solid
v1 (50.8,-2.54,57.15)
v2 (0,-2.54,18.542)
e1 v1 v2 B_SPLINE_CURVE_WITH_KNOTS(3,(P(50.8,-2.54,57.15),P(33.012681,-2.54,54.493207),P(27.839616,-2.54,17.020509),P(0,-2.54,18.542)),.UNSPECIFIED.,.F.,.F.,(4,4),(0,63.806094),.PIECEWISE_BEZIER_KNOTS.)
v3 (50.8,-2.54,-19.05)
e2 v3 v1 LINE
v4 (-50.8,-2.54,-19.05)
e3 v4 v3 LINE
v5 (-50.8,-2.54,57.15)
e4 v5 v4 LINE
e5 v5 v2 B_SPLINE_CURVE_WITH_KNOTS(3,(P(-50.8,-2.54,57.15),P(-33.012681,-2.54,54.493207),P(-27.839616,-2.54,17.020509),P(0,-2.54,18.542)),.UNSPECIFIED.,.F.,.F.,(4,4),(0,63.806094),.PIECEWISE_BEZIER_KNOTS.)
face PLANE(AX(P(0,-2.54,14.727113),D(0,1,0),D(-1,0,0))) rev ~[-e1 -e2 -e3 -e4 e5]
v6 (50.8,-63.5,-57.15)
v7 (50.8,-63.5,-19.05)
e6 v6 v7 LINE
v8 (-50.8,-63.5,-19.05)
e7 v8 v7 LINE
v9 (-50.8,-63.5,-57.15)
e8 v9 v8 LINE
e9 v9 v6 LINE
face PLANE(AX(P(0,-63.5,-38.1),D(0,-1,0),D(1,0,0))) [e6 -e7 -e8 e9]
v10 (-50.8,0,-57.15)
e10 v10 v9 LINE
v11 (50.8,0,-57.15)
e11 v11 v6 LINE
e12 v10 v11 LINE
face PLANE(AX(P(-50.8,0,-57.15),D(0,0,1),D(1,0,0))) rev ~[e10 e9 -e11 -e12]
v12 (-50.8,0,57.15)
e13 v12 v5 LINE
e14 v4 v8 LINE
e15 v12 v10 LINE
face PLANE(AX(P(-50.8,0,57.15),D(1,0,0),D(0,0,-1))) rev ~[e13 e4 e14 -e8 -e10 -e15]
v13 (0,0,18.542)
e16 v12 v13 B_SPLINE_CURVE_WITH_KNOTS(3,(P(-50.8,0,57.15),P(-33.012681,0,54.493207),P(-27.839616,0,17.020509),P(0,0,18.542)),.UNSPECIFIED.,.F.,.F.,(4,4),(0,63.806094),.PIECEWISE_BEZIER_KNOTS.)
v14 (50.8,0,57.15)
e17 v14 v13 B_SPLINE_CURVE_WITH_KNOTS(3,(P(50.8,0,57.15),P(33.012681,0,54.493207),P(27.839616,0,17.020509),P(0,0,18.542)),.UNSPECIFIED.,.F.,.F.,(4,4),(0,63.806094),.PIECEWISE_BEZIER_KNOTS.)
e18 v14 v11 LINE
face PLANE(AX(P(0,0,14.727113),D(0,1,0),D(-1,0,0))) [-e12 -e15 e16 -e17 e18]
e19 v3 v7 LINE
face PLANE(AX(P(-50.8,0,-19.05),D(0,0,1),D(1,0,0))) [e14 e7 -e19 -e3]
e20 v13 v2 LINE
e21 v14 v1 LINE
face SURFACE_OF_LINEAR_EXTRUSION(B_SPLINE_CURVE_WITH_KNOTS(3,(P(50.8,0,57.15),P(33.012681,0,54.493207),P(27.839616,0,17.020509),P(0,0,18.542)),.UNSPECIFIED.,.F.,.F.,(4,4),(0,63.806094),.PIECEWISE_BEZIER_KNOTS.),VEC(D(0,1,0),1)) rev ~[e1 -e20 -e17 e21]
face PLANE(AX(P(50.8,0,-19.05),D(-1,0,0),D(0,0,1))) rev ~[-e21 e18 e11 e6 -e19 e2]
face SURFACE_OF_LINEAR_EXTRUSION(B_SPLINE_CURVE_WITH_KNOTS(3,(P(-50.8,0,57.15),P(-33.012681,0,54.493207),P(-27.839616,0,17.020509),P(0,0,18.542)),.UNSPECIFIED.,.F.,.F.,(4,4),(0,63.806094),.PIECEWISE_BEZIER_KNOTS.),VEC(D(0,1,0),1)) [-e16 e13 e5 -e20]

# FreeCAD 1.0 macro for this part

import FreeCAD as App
import Part
import Sketcher
Q = App.Units.Quantity


def add_polygon(sketch, points):
    """Adds a closed chain of lines whose ends are joined by coincident constraints."""
    first, n = sketch.GeometryCount, len(points)
    for a, b in zip(points, points[1:] + points[:1]):
        sketch.addGeometry(Part.LineSegment(App.Vector(*a, 0), App.Vector(*b, 0)), False)
    for i in range(n):
        sketch.addConstraint(Sketcher.Constraint("Coincident", first + i, 2, first + (i + 1) % n, 1))

doc = App.newDocument("Part")
body = doc.addObject("PartDesign::Body", "Body")

sketch1 = body.newObject("Sketcher::SketchObject", "Sketch")
sketch1.AttachmentSupport = (doc.getObject("XZ_Plane"), [""])
sketch1.MapMode = "FlatFace"
add_polygon(sketch1, [(-51, -19), (-51, -57), (51, -57), (51, -19)])
sketch1.addConstraint([
    Sketcher.Constraint("Vertical", 0),
    Sketcher.Constraint("Horizontal", 1),
    Sketcher.Constraint("Vertical", 2),
    Sketcher.Constraint("Horizontal", 3),
    Sketcher.Constraint("DistanceX", 1, 1, 1, 2, Q("4 in")),
    Sketcher.Constraint("DistanceY", 0, 2, 0, 1, Q("1.5 in")),
    Sketcher.Constraint("DistanceX", 0, 2, -1, 1, Q("2 in")),
    Sketcher.Constraint("DistanceY", 0, 2, -1, 1, Q("2.25 in")),
])
pad1 = body.newObject("PartDesign::Pad", "Pad")
pad1.Profile = sketch1
pad1.Length = Q("2.5 in")

sketch2 = body.newObject("Sketcher::SketchObject", "Sketch001")
sketch2.AttachmentSupport = (doc.getObject("XZ_Plane"), [""])
sketch2.MapMode = "FlatFace"
sketch2.addGeometry([
    Part.BSplineCurve([App.Vector(-50.8, 57.15, 0), App.Vector(-33.012681, 54.493207, 0), App.Vector(-27.839616, 17.020509, 0), App.Vector(0, 18.542, 0)], [4, 4], [0, 63.806094], False, 3, [1, 1, 1, 1], False),
    Part.LineSegment(App.Vector(-50.8, 57.15, 0), App.Vector(-50.8, -19.05, 0)),
    Part.LineSegment(App.Vector(-50.8, -19.05, 0), App.Vector(50.8, -19.05, 0)),
    Part.LineSegment(App.Vector(50.8, -19.05, 0), App.Vector(50.8, 57.15, 0)),
    Part.BSplineCurve([App.Vector(50.8, 57.15, 0), App.Vector(33.012681, 54.493207, 0), App.Vector(27.839616, 17.020509, 0), App.Vector(0, 18.542, 0)], [4, 4], [0, 63.806094], False, 3, [1, 1, 1, 1], False),
], False)
sketch2.addConstraint([
    Sketcher.Constraint("Block", 0),
    Sketcher.Constraint("Block", 4),
    Sketcher.Constraint("Coincident", 0, 1, 1, 1),
    Sketcher.Constraint("Coincident", 1, 2, 2, 1),
    Sketcher.Constraint("Coincident", 2, 2, 3, 1),
    Sketcher.Constraint("Coincident", 3, 2, 4, 1),
    Sketcher.Constraint("Vertical", 1),
    Sketcher.Constraint("Horizontal", 2),
    Sketcher.Constraint("Vertical", 3),
    Sketcher.Constraint("DistanceY", 1, 2, 1, 1, Q("3 in")),
])
pad2 = body.newObject("PartDesign::Pad", "Pad001")
pad2.Profile = sketch2
pad2.Length = Q("0.1 in")

doc.recompute()
